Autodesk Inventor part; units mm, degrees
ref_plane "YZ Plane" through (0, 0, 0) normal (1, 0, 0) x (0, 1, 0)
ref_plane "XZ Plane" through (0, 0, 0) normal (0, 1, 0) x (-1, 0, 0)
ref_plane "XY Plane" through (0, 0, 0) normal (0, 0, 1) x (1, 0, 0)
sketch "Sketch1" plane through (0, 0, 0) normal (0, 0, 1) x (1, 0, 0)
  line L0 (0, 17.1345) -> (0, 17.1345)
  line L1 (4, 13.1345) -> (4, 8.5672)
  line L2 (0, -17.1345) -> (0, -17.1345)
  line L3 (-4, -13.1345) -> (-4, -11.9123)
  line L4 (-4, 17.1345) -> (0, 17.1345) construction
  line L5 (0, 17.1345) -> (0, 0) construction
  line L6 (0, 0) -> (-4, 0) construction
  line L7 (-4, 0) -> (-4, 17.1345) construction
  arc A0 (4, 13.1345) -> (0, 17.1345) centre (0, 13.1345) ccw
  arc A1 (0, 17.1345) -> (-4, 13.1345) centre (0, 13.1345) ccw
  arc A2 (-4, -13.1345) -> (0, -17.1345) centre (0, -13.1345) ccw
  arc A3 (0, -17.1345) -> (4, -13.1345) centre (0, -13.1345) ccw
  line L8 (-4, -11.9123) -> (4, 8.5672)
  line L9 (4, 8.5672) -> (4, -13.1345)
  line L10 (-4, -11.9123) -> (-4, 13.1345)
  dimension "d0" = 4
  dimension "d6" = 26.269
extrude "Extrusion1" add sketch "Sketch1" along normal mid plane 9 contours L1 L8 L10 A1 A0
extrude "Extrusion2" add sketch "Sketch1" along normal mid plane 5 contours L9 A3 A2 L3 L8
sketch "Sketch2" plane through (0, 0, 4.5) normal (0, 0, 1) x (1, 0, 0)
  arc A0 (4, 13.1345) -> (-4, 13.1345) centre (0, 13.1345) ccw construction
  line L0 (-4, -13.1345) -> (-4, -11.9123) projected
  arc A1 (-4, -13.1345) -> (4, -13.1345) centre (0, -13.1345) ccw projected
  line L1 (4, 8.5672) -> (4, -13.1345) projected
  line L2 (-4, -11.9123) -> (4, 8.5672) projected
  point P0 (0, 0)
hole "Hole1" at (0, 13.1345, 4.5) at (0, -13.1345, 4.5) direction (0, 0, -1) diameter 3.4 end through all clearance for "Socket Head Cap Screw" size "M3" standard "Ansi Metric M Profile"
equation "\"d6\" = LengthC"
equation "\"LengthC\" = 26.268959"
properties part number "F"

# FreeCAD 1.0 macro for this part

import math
import FreeCAD as App
import Part
import Sketcher

doc = App.newDocument("Part")
body = doc.addObject("PartDesign::Body", "Body")

# Sketch on XY plane
sketch1 = body.newObject("Sketcher::SketchObject", "Sketch")
sketch1.AttachmentSupport = (doc.getObject("XY_Plane"), [""])
sketch1.MapMode = "FlatFace"
sketch1.addGeometry([
    Part.LineSegment(App.Vector(4, 8.6, 0), App.Vector(4, 13.1, 0)),
    Part.ArcOfCircle(Part.Circle(App.Vector(0, 13.1, 0), App.Vector(0, 0, 1), 4), math.radians(0), math.radians(180)),
    Part.LineSegment(App.Vector(-4, 13.1, 0), App.Vector(-4, -11.9, 0)),
    Part.LineSegment(App.Vector(-4, -11.9, 0), App.Vector(4, 8.6, 0)),
], False)
sketch1.addConstraint([
    Sketcher.Constraint("Tangent", 0, 2, 1, 1),
    Sketcher.Constraint("Tangent", 1, 2, 2, 1),
    Sketcher.Constraint("Coincident", 2, 2, 3, 1),
    Sketcher.Constraint("Coincident", 3, 2, 0, 1),
    Sketcher.Constraint("Vertical", 0),
    Sketcher.Constraint("Vertical", 2),
    Sketcher.Constraint("PointOnObject", 1, 3, -2),
    Sketcher.Constraint("Radius", 1, 4.0),
    Sketcher.Constraint("DistanceY", 0, 1, 0, 2, 4.5673),
    Sketcher.Constraint("DistanceY", 2, 2, 2, 1, 25.0468),
    Sketcher.Constraint("DistanceY", -1, 1, 1, 3, 13.1345),
])
pad1 = body.newObject("PartDesign::Pad", "Pad")
pad1.Profile = sketch1
pad1.Length = 9
pad1.Midplane = True

# Sketch on XY plane
sketch2 = body.newObject("Sketcher::SketchObject", "Sketch001")
sketch2.AttachmentSupport = (doc.getObject("XY_Plane"), [""])
sketch2.MapMode = "FlatFace"
sketch2.addGeometry([
    Part.LineSegment(App.Vector(4, -13.1, 0), App.Vector(4, 8.6, 0)),
    Part.LineSegment(App.Vector(4, 8.6, 0), App.Vector(-4, -11.9, 0)),
    Part.LineSegment(App.Vector(-4, -11.9, 0), App.Vector(-4, -13.1, 0)),
    Part.ArcOfCircle(Part.Circle(App.Vector(0, -13.1, 0), App.Vector(0, 0, 1), 4), math.radians(180), math.radians(360)),
], False)
sketch2.addConstraint([
    Sketcher.Constraint("Coincident", 0, 2, 1, 1),
    Sketcher.Constraint("Coincident", 1, 2, 2, 1),
    Sketcher.Constraint("Tangent", 2, 2, 3, 1),
    Sketcher.Constraint("Tangent", 3, 2, 0, 1),
    Sketcher.Constraint("Vertical", 0),
    Sketcher.Constraint("Vertical", 2),
    Sketcher.Constraint("PointOnObject", 3, 3, -2),
    Sketcher.Constraint("Radius", 3, 4.0),
    Sketcher.Constraint("DistanceY", 0, 1, 0, 2, 21.7017),
    Sketcher.Constraint("DistanceY", 2, 2, 2, 1, 1.2222),
    Sketcher.Constraint("DistanceY", 3, 3, -1, 1, 13.1345),
])
pad2 = body.newObject("PartDesign::Pad", "Pad001")
pad2.Profile = sketch2
pad2.Length = 5
pad2.Midplane = True

# Sketch on XY plane
sketch3 = body.newObject("Sketcher::SketchObject", "Sketch002")
sketch3.AttachmentSupport = (doc.getObject("XY_Plane"), [""])
sketch3.MapMode = "FlatFace"
sketch3.AttachmentOffset = App.Placement(App.Vector(0, 0, 4.5), App.Rotation())
sketch3.addGeometry([
    Part.Circle(App.Vector(0, 13.1, 0), App.Vector(0, 0, 1), 1.7),
    Part.Circle(App.Vector(0, -13.1, 0), App.Vector(0, 0, 1), 1.7),
], False)
sketch3.addConstraint([
    Sketcher.Constraint("Equal", 0, 1),
    Sketcher.Constraint("Symmetric", 0, 3, 1, 3, -1, 1),
    Sketcher.Constraint("PointOnObject", 0, 3, -2),
    Sketcher.Constraint("Diameter", 0, 3.4),
    Sketcher.Constraint("DistanceY", 1, 3, 0, 3, 26.269),
])
doc.recompute()
hole = body.newObject("PartDesign::Hole", "Hole")
hole.Profile = sketch3
hole.ThreadType = "None"
hole.Diameter = 3.4
hole.DepthType = "ThroughAll"

doc.recompute()
